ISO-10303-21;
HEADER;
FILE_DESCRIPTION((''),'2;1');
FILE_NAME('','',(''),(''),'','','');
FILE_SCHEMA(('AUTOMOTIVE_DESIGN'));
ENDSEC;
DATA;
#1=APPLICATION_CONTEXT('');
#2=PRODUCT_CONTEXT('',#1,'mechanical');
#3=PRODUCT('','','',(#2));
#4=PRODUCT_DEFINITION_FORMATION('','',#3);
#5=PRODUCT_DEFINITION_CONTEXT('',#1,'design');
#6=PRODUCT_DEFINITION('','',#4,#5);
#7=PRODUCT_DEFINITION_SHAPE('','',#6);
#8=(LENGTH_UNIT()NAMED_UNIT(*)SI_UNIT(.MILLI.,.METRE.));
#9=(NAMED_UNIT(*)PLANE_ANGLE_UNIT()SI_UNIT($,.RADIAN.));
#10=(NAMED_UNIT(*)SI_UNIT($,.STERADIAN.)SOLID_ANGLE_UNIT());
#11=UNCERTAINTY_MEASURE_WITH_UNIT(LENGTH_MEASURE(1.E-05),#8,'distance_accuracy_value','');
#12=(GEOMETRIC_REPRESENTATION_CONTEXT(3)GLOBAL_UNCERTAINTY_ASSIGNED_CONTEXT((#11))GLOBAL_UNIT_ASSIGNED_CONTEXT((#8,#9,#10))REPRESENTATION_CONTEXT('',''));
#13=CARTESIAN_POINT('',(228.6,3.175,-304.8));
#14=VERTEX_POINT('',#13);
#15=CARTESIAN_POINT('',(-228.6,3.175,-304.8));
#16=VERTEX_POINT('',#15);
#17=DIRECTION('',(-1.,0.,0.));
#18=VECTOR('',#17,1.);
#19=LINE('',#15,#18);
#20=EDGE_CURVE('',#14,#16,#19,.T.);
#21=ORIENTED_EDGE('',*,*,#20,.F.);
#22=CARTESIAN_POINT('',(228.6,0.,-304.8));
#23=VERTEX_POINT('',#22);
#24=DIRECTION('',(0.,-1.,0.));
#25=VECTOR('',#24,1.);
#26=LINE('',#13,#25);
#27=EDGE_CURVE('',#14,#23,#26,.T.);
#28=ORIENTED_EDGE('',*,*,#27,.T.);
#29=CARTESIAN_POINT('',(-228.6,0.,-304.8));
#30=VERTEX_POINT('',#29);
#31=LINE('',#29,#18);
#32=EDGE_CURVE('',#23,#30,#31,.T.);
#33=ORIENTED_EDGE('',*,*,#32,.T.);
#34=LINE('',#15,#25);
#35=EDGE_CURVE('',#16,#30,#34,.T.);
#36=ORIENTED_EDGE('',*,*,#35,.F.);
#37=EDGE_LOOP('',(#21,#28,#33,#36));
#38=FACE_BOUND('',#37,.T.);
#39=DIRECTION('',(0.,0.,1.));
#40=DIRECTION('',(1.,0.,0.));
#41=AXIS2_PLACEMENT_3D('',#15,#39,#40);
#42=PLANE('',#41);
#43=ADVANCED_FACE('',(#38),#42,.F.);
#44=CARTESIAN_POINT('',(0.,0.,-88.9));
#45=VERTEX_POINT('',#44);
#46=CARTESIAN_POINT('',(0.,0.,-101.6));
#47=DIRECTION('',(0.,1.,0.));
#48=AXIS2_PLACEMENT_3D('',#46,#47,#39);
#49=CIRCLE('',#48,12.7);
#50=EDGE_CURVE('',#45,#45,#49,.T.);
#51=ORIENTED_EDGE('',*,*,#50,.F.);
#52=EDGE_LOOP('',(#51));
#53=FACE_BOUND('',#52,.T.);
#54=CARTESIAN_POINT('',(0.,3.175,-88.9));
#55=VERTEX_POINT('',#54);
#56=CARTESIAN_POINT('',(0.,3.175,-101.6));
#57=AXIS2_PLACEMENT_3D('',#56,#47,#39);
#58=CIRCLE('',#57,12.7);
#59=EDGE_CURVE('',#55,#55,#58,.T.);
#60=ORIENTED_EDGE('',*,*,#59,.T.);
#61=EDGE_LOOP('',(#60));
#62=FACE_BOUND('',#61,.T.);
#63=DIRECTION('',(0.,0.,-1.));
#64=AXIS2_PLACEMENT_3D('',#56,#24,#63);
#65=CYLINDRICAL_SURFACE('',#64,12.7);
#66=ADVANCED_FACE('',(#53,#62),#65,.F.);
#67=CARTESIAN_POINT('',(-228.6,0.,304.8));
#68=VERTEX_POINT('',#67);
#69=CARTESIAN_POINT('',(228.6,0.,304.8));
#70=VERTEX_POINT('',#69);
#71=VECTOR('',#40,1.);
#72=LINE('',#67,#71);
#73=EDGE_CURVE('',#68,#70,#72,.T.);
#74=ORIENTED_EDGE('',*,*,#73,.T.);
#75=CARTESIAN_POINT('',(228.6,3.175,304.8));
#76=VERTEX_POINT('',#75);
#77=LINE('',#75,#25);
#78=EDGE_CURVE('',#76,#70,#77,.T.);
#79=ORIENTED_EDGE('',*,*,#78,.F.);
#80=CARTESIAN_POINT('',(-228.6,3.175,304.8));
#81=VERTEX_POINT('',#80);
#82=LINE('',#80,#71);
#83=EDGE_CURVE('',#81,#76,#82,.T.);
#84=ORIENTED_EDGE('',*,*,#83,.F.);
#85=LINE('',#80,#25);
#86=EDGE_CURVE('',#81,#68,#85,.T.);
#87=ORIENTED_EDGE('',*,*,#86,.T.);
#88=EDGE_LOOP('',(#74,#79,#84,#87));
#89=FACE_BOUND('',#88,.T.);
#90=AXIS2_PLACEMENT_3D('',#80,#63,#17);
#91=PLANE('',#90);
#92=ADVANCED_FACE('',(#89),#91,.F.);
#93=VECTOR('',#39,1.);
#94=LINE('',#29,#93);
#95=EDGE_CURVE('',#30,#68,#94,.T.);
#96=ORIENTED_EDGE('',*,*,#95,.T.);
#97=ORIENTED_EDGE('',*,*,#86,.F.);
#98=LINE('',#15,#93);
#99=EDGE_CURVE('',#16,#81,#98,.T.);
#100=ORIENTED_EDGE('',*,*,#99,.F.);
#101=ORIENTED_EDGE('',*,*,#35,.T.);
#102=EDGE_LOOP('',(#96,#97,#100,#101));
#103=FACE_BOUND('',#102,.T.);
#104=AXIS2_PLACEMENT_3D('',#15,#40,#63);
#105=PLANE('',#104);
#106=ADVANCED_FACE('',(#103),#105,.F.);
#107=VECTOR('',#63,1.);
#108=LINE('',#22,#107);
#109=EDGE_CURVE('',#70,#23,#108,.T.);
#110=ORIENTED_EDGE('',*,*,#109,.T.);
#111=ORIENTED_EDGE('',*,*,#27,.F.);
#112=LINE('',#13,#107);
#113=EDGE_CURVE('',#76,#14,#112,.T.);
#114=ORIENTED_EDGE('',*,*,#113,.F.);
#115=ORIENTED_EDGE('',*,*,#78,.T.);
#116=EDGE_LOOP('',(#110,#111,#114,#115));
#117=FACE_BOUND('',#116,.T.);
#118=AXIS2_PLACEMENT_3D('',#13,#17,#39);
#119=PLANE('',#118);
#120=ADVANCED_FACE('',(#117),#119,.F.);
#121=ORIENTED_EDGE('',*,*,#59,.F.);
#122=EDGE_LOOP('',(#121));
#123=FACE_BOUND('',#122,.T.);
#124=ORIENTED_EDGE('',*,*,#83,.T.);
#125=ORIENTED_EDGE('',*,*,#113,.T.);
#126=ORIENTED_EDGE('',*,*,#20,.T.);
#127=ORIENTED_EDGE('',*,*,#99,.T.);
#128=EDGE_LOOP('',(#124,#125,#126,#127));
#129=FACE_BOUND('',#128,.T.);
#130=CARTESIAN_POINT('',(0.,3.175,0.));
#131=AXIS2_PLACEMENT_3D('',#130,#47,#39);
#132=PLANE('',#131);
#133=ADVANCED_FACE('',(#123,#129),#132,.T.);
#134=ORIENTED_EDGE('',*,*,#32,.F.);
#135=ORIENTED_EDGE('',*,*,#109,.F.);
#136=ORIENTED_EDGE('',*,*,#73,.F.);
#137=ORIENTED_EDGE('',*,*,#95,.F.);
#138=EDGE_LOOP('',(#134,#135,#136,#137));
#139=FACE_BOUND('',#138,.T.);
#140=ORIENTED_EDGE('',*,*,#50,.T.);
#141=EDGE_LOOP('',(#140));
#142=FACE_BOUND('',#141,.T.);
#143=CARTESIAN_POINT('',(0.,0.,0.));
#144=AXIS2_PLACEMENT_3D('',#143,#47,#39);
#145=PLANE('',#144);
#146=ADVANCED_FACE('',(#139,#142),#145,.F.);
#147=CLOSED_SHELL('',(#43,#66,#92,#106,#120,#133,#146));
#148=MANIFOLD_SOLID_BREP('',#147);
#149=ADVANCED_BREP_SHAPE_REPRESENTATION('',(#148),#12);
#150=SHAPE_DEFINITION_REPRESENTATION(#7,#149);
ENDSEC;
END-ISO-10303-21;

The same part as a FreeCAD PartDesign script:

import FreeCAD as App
import Part
import Sketcher
from FreeCAD import Vector
Q = App.Units.Quantity


def add_polygon(sketch, points):
    """Adds a closed chain of lines whose ends are joined by coincident constraints."""
    first, n = sketch.GeometryCount, len(points)
    for a, b in zip(points, points[1:] + points[:1]):
        sketch.addGeometry(Part.LineSegment(App.Vector(*a, 0), App.Vector(*b, 0)), False)
    for i in range(n):
        sketch.addConstraint(Sketcher.Constraint("Coincident", first + i, 2, first + (i + 1) % n, 1))

doc = App.newDocument("Part")
params = doc.addObject("Spreadsheet::Sheet", "Params")
for row, (alias, value) in enumerate([
    ("sketch1_diameter", "1 in"),
    ("sketch1_width", "18 in"),
    ("sketch1_height", "24 in"),
    ("pad1_length", "0.125 in"),
], start=1):
    params.set(f"A{row}", alias)
    params.set(f"B{row}", "=" + value)
    params.setAlias(f"B{row}", alias)

body = doc.addObject("PartDesign::Body", "Body")

# Sketch on XZ plane
sketch1 = doc.addObject("Sketcher::SketchObject", "Sketch")
body.addObject(sketch1)
sketch1.AttachmentSupport = (doc.XZ_Plane, [""])
sketch1.MapMode = "FlatFace"
add_polygon(sketch1, [(-229, -305), (-229, 305), (229, 305), (229, -305)])  # lines 0-3
sketch1.addGeometry(Part.Circle(Vector(0, -102, 0), Vector(0, 0, 1), 13), False)  # 4
sketch1.addConstraint([
    Sketcher.Constraint("Vertical", 0),
    Sketcher.Constraint("Horizontal", 1),
    Sketcher.Constraint("Vertical", 2),
    Sketcher.Constraint("Horizontal", 3),
    Sketcher.Constraint("Symmetric", 0, 2, 2, 2, -1, 1),
    Sketcher.Constraint("PointOnObject", 4, 3, -2),
    Sketcher.Constraint("Diameter", 4, Q("1 in")),
    Sketcher.Constraint("DistanceX", 1, 1, 1, 2, Q("18 in")),
    Sketcher.Constraint("DistanceY", 0, 1, 0, 2, Q("24 in")),
    Sketcher.Constraint("DistanceY", 4, 3, -1, 1, Q("4 in")),
])
sketch1.setExpression("Constraints[10]", "Params.sketch1_diameter")
sketch1.setExpression("Constraints[11]", "Params.sketch1_width")
sketch1.setExpression("Constraints[12]", "Params.sketch1_height")
pad1 = doc.addObject("PartDesign::Pad", "Pad")
body.addObject(pad1)
pad1.Profile = sketch1
pad1.setExpression("Length", "Params.pad1_length")
pad1.Reversed = True

doc.recompute()
